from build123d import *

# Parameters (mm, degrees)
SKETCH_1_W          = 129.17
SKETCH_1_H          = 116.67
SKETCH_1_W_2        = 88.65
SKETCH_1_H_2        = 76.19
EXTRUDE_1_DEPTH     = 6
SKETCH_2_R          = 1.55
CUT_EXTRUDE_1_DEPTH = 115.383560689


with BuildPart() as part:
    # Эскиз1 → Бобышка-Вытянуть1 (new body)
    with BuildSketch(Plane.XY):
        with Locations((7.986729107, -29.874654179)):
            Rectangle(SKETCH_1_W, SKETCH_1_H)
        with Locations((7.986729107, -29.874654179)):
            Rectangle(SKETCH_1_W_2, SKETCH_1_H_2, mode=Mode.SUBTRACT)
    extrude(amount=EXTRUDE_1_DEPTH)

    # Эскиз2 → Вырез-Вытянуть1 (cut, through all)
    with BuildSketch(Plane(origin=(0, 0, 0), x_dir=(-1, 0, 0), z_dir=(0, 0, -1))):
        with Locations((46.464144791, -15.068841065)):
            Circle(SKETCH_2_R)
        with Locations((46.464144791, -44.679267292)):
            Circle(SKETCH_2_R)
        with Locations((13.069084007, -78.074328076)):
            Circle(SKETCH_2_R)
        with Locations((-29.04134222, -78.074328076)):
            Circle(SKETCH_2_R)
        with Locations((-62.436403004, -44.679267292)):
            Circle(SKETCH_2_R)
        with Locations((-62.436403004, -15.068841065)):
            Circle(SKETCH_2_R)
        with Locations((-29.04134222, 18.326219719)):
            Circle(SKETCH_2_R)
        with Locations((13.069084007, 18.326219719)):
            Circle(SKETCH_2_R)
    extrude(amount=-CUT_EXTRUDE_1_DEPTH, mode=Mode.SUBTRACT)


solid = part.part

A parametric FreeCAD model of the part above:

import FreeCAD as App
import Part
import Sketcher

V = App.Vector
Q = App.Units.Quantity

doc = App.newDocument("Part")
body = doc.addObject("PartDesign::Body", "Body")

# Sketch on XY plane
sketch1 = body.newObject("Sketcher::SketchObject", "Sketch")
sketch1.AttachmentSupport = (doc.getObject("XY_Plane"), [""])
sketch1.MapMode = "FlatFace"
sketch1.addGeometry([
    Part.LineSegment(V(-57, 28, 0), V(-57, -88, 0)),  # 0
    Part.LineSegment(V(-57, -88, 0), V(73, -88, 0)),  # 1
    Part.LineSegment(V(73, -88, 0), V(73, 28, 0)),  # 2
    Part.LineSegment(V(73, 28, 0), V(-57, 28, 0)),  # 3
    Part.LineSegment(V(52, -68, 0), V(-36, -68, 0)),  # 4
    Part.LineSegment(V(-36, -68, 0), V(-36, 8, 0)),  # 5
    Part.LineSegment(V(-36, 8, 0), V(52, 8, 0)),  # 6
    Part.LineSegment(V(52, 8, 0), V(52, -68, 0)),  # 7
], False)
sketch1.addConstraint([
    Sketcher.Constraint("Coincident", 0, 2, 1, 1),
    Sketcher.Constraint("Coincident", 1, 2, 2, 1),
    Sketcher.Constraint("Coincident", 2, 2, 3, 1),
    Sketcher.Constraint("Coincident", 3, 2, 0, 1),
    Sketcher.Constraint("Coincident", 4, 2, 5, 1),
    Sketcher.Constraint("Coincident", 5, 2, 6, 1),
    Sketcher.Constraint("Coincident", 6, 2, 7, 1),
    Sketcher.Constraint("Coincident", 7, 2, 4, 1),
    Sketcher.Constraint("Vertical", 0),
    Sketcher.Constraint("Horizontal", 1),
    Sketcher.Constraint("Vertical", 2),
    Sketcher.Constraint("Horizontal", 3),
    Sketcher.Constraint("Horizontal", 4),
    Sketcher.Constraint("Vertical", 5),
    Sketcher.Constraint("Horizontal", 6),
    Sketcher.Constraint("Vertical", 7),
    Sketcher.Constraint("DistanceX", 1, 1, 1, 2, Q("129.17 mm")),
    Sketcher.Constraint("DistanceX", 4, 2, 4, 1, Q("88.65 mm")),
    Sketcher.Constraint("DistanceY", 0, 2, 0, 1, Q("116.67 mm")),
    Sketcher.Constraint("DistanceY", 5, 1, 5, 2, Q("76.19 mm")),
    Sketcher.Constraint("DistanceX", 0, 2, 4, 2, Q("20.26 mm")),
    Sketcher.Constraint("DistanceY", 0, 2, 4, 2, Q("20.24 mm")),
    Sketcher.Constraint("DistanceX", 0, 2, -1, 1, Q("56.598271 mm")),
    Sketcher.Constraint("DistanceY", 0, 2, -1, 1, Q("88.209654 mm")),
])
pad1 = body.newObject("PartDesign::Pad", "Pad")
pad1.Profile = sketch1
pad1.Length = 6

# Sketch on XY plane
sketch2 = body.newObject("Sketcher::SketchObject", "Sketch001")
sketch2.AttachmentSupport = (doc.getObject("XY_Plane"), [""])
sketch2.MapMode = "FlatFace"
sketch2.addGeometry([
    Part.Circle(V(-46.5, -15.1, 0), V(0, 0, 1), 1.6),  # 0
    Part.Circle(V(-46.5, -44.7, 0), V(0, 0, 1), 1.6),  # 1
    Part.Circle(V(-13.1, -78.1, 0), V(0, 0, 1), 1.6),  # 2
    Part.Circle(V(29, -78.1, 0), V(0, 0, 1), 1.6),  # 3
    Part.Circle(V(62.4, -44.7, 0), V(0, 0, 1), 1.6),  # 4
    Part.Circle(V(62.4, -15.1, 0), V(0, 0, 1), 1.6),  # 5
    Part.Circle(V(29, 18.3, 0), V(0, 0, 1), 1.6),  # 6
    Part.Circle(V(-13.1, 18.3, 0), V(0, 0, 1), 1.6),  # 7
], False)
sketch2.addConstraint([
    Sketcher.Constraint("Equal", 0, 1),
    Sketcher.Constraint("Equal", 1, 2),
    Sketcher.Constraint("Equal", 2, 3),
    Sketcher.Constraint("Equal", 3, 4),
    Sketcher.Constraint("Equal", 4, 5),
    Sketcher.Constraint("Equal", 5, 6),
    Sketcher.Constraint("Equal", 6, 7),
    Sketcher.Constraint("Horizontal", 2, 3, 3, 3),
    Sketcher.Constraint("Horizontal", 1, 3, 4, 3),
    Sketcher.Constraint("Horizontal", 0, 3, 5, 3),
    Sketcher.Constraint("Horizontal", 6, 3, 7, 3),
    Sketcher.Constraint("Vertical", 0, 3, 1, 3),
    Sketcher.Constraint("Vertical", 4, 3, 5, 3),
    Sketcher.Constraint("Vertical", 3, 3, 6, 3),
    Sketcher.Constraint("Vertical", 2, 3, 7, 3),
    Sketcher.Constraint("Diameter", 0, Q("3.1 mm")),
    Sketcher.Constraint("DistanceY", 0, 3, -1, 1, Q("15.068841 mm")),
    Sketcher.Constraint("DistanceY", 2, 3, -1, 1, Q("78.074328 mm")),
    Sketcher.Constraint("DistanceY", -1, 1, 6, 3, Q("18.32622 mm")),
    Sketcher.Constraint("DistanceX", 1, 3, 2, 3, Q("33.395061 mm")),
    Sketcher.Constraint("DistanceY", 2, 3, 1, 3, Q("33.395061 mm")),
    Sketcher.Constraint("DistanceX", 3, 3, 4, 3, Q("33.395061 mm")),
    Sketcher.Constraint("DistanceX", 0, 3, -1, 1, Q("46.464145 mm")),
    Sketcher.Constraint("DistanceX", -1, 1, 3, 3, Q("29.041342 mm")),
])
pocket1 = body.newObject("PartDesign::Pocket", "Pocket")
pocket1.Profile = sketch2
pocket1.Type = "ThroughAll"
pocket1.Reversed = True

doc.recompute()
